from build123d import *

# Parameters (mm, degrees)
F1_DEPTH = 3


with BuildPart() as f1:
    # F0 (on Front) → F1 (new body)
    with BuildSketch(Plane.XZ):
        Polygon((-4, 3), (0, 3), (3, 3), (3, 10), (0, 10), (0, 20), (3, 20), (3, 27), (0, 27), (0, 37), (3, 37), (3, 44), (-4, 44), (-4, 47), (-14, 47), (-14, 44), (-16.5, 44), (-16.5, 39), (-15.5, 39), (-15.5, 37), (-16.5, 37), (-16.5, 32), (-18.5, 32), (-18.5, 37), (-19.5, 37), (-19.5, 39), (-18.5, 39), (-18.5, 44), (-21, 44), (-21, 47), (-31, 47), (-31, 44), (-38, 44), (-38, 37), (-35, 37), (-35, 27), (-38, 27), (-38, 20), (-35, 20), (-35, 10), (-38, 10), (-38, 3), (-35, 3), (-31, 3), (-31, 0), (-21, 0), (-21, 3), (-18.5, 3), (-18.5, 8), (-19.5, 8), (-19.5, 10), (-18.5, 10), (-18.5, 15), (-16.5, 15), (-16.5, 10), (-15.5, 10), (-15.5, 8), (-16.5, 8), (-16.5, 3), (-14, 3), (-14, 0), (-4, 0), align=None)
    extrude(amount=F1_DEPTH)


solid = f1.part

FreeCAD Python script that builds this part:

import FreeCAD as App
import Part
import Sketcher

V = App.Vector
Q = App.Units.Quantity


def add_polygon(sketch, points):
    """Adds a closed chain of lines whose ends are joined by coincident constraints."""
    first, n = sketch.GeometryCount, len(points)
    for a, b in zip(points, points[1:] + points[:1]):
        sketch.addGeometry(Part.LineSegment(App.Vector(*a, 0), App.Vector(*b, 0)), False)
    for i in range(n):
        sketch.addConstraint(Sketcher.Constraint("Coincident", first + i, 2, first + (i + 1) % n, 1))

doc = App.newDocument("Part")
body = doc.addObject("PartDesign::Body", "Body")

# Sketch on XZ plane
sketch1 = body.newObject("Sketcher::SketchObject", "Sketch")
sketch1.AttachmentSupport = (doc.getObject("XZ_Plane"), [""])
sketch1.MapMode = "FlatFace"
add_polygon(sketch1, [(-4, 3), (3, 3), (3, 10), (0, 10), (0, 20), (3, 20), (3, 27), (0, 27), (0, 37), (3, 37), (3, 44), (-4, 44), (-4, 47), (-14, 47), (-14, 44), (-16.5, 44), (-16.5, 39), (-15.5, 39), (-15.5, 37), (-16.5, 37), (-16.5, 32), (-18.5, 32), (-18.5, 37), (-19.5, 37), (-19.5, 39), (-18.5, 39), (-18.5, 44), (-21, 44), (-21, 47), (-31, 47), (-31, 44), (-38, 44), (-38, 37), (-35, 37), (-35, 27), (-38, 27), (-38, 20), (-35, 20), (-35, 10), (-38, 10), (-38, 3), (-31, 3), (-31, 0), (-21, 0), (-21, 3), (-18.5, 3), (-18.5, 8), (-19.5, 8), (-19.5, 10), (-18.5, 10), (-18.5, 15), (-16.5, 15), (-16.5, 10), (-15.5, 10), (-15.5, 8), (-16.5, 8), (-16.5, 3), (-14, 3), (-14, 0), (-4, 0)])  # lines 0-59
sketch1.addConstraint([
    Sketcher.Constraint("Horizontal", 0),
    Sketcher.Constraint("Vertical", 1),
    Sketcher.Constraint("Horizontal", 2),
    Sketcher.Constraint("Vertical", 3),
    Sketcher.Constraint("Horizontal", 4),
    Sketcher.Constraint("Vertical", 5),
    Sketcher.Constraint("Horizontal", 6),
    Sketcher.Constraint("Vertical", 7),
    Sketcher.Constraint("Horizontal", 8),
    Sketcher.Constraint("Vertical", 9),
    Sketcher.Constraint("Horizontal", 10),
    Sketcher.Constraint("Vertical", 11),
    Sketcher.Constraint("Horizontal", 12),
    Sketcher.Constraint("Vertical", 13),
    Sketcher.Constraint("Horizontal", 14),
    Sketcher.Constraint("Vertical", 15),
    Sketcher.Constraint("Horizontal", 16),
    Sketcher.Constraint("Vertical", 17),
    Sketcher.Constraint("Horizontal", 18),
    Sketcher.Constraint("Vertical", 19),
    Sketcher.Constraint("Horizontal", 20),
    Sketcher.Constraint("Vertical", 21),
    Sketcher.Constraint("Horizontal", 22),
    Sketcher.Constraint("Vertical", 23),
    Sketcher.Constraint("Horizontal", 24),
    Sketcher.Constraint("Vertical", 25),
    Sketcher.Constraint("Horizontal", 26),
    Sketcher.Constraint("Vertical", 27),
    Sketcher.Constraint("Horizontal", 28),
    Sketcher.Constraint("Vertical", 29),
    Sketcher.Constraint("Horizontal", 30),
    Sketcher.Constraint("Vertical", 31),
    Sketcher.Constraint("Horizontal", 32),
    Sketcher.Constraint("Vertical", 33),
    Sketcher.Constraint("Horizontal", 34),
    Sketcher.Constraint("Vertical", 35),
    Sketcher.Constraint("Horizontal", 36),
    Sketcher.Constraint("Vertical", 37),
    Sketcher.Constraint("Horizontal", 38),
    Sketcher.Constraint("Vertical", 39),
    Sketcher.Constraint("Horizontal", 40),
    Sketcher.Constraint("Vertical", 41),
    Sketcher.Constraint("Horizontal", 42),
    Sketcher.Constraint("Vertical", 43),
    Sketcher.Constraint("Horizontal", 44),
    Sketcher.Constraint("Vertical", 45),
    Sketcher.Constraint("Horizontal", 46),
    Sketcher.Constraint("Vertical", 47),
    Sketcher.Constraint("Horizontal", 48),
    Sketcher.Constraint("Vertical", 49),
    Sketcher.Constraint("Horizontal", 50),
    Sketcher.Constraint("Vertical", 51),
    Sketcher.Constraint("Horizontal", 52),
    Sketcher.Constraint("Vertical", 53),
    Sketcher.Constraint("Horizontal", 54),
    Sketcher.Constraint("Vertical", 55),
    Sketcher.Constraint("Horizontal", 56),
    Sketcher.Constraint("Vertical", 57),
    Sketcher.Constraint("Horizontal", 58),
    Sketcher.Constraint("Vertical", 59),
    Sketcher.Constraint("PointOnObject", 2, 2, -2),
    Sketcher.Constraint("PointOnObject", 6, 2, -2),
    Sketcher.Constraint("PointOnObject", 41, 2, -1),
    Sketcher.Constraint("PointOnObject", 57, 2, -1),
    Sketcher.Constraint("Horizontal", 10, 2, 13, 2),
    Sketcher.Constraint("Horizontal", 8, 2, 17, 2),
    Sketcher.Constraint("Horizontal", 18, 2, 21, 2),
    Sketcher.Constraint("Horizontal", 16, 2, 23, 2),
    Sketcher.Constraint("Horizontal", 14, 2, 25, 2),
    Sketcher.Constraint("Horizontal", 12, 2, 27, 2),
    Sketcher.Constraint("Horizontal", 26, 2, 29, 2),
    Sketcher.Constraint("Horizontal", 22, 2, 31, 2),
    Sketcher.Constraint("Horizontal", 6, 2, 33, 2),
    Sketcher.Constraint("Horizontal", 4, 2, 35, 2),
    Sketcher.Constraint("Horizontal", 2, 2, 37, 2),
    Sketcher.Constraint("Horizontal", 0, 2, 39, 2),
    Sketcher.Constraint("Horizontal", 40, 2, 43, 2),
    Sketcher.Constraint("Horizontal", 38, 2, 47, 2),
    Sketcher.Constraint("Horizontal", 48, 2, 51, 2),
    Sketcher.Constraint("Horizontal", 46, 2, 53, 2),
    Sketcher.Constraint("Horizontal", 44, 2, 55, 2),
    Sketcher.Constraint("Vertical", 1, 2, 4, 2),
    Sketcher.Constraint("Vertical", 5, 2, 8, 2),
    Sketcher.Constraint("Vertical", 15, 2, 18, 2),
    Sketcher.Constraint("Vertical", 21, 2, 24, 2),
    Sketcher.Constraint("Vertical", 31, 2, 34, 2),
    Sketcher.Constraint("Vertical", 33, 2, 36, 2),
    Sketcher.Constraint("Vertical", 35, 2, 38, 2),
    Sketcher.Constraint("Vertical", 29, 2, 40, 2),
    Sketcher.Constraint("Vertical", 27, 2, 42, 2),
    Sketcher.Constraint("Vertical", 25, 2, 44, 2),
    Sketcher.Constraint("Vertical", 23, 2, 46, 2),
    Sketcher.Constraint("Vertical", 45, 2, 48, 2),
    Sketcher.Constraint("Vertical", 19, 2, 50, 2),
    Sketcher.Constraint("Vertical", 17, 2, 52, 2),
    Sketcher.Constraint("Vertical", 51, 2, 54, 2),
    Sketcher.Constraint("Vertical", 13, 2, 56, 2),
    Sketcher.Constraint("Vertical", 11, 2, 58, 2),
    Sketcher.Constraint("Equal", 18, 22),
    Sketcher.Constraint("Equal", 14, 26),
    Sketcher.Constraint("Equal", 12, 28),
    Sketcher.Constraint("Equal", 10, 30),
    Sketcher.Constraint("Equal", 8, 32),
    Sketcher.Constraint("Equal", 40, 1),
    Sketcher.Constraint("Equal", 58, 3),
    Sketcher.Constraint("Equal", 1, 5),
    Sketcher.Constraint("Equal", 3, 7),
    Sketcher.Constraint("Equal", 5, 9),
    Sketcher.Constraint("Equal", 38, 11),
    Sketcher.Constraint("Equal", 50, 17),
    Sketcher.Constraint("Equal", 15, 19),
    Sketcher.Constraint("Equal", 29, 41),
    Sketcher.Constraint("Equal", 25, 45),
    Sketcher.Constraint("Equal", 45, 49),
    Sketcher.Constraint("DistanceX", 0, 1, 0, 2, Q("7 mm")),
    Sketcher.Constraint("DistanceX", 2, 2, 2, 1, Q("3 mm")),
    Sketcher.Constraint("DistanceX", 12, 2, 12, 1, Q("10 mm")),
    Sketcher.Constraint("DistanceX", 16, 1, 16, 2, Q("1 mm")),
    Sketcher.Constraint("DistanceX", 20, 2, 20, 1, Q("2 mm")),
    Sketcher.Constraint("DistanceX", 14, 2, 14, 1, Q("2.5 mm")),
])
pad1 = body.newObject("PartDesign::Pad", "Pad")
pad1.Profile = sketch1
pad1.Length = 3

doc.recompute()
